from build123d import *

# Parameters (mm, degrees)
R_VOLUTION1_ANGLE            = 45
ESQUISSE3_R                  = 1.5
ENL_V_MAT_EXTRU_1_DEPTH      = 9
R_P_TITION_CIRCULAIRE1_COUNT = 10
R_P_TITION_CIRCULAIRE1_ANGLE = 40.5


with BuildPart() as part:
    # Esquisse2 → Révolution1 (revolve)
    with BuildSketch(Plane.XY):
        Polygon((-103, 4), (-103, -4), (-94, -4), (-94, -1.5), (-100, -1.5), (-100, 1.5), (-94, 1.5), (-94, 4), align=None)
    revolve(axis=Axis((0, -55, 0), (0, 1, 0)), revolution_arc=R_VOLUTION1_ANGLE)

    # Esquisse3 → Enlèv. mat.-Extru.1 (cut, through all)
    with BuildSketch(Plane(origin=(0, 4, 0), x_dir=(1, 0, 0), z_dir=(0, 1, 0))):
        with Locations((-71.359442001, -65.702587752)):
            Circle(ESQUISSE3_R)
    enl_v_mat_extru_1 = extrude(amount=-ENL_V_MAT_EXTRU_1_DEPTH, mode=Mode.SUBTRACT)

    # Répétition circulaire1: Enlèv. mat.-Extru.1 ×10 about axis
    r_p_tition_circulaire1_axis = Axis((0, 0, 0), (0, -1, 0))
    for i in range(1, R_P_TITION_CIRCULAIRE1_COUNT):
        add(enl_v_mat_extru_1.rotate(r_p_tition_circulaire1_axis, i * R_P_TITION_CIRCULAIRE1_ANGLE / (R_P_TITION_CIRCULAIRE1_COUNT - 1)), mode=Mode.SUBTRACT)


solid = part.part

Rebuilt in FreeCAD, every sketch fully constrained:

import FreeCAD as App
import Part
import Sketcher

V = App.Vector
Q = App.Units.Quantity

doc = App.newDocument("Part")
body = doc.addObject("PartDesign::Body", "Body")

# Sketch on XY plane
sketch1 = doc.addObject("Sketcher::SketchObject", "Sketch")
body.addObject(sketch1)
sketch1.AttachmentSupport = (doc.XY_Plane, [""])
sketch1.MapMode = "FlatFace"
sketch1.addGeometry([
    Part.LineSegment(V(-103, 4, 0), V(-103, -4, 0)),  # 0
    Part.LineSegment(V(-103, -4, 0), V(-94, -4, 0)),  # 1
    Part.LineSegment(V(-94, -4, 0), V(-94, -1.5, 0)),  # 2
    Part.LineSegment(V(-94, -1.5, 0), V(-100, -1.5, 0)),  # 3
    Part.LineSegment(V(-100, -1.5, 0), V(-100, 1.5, 0)),  # 4
    Part.LineSegment(V(-100, 1.5, 0), V(-94, 1.5, 0)),  # 5
    Part.LineSegment(V(-94, 1.5, 0), V(-94, 4, 0)),  # 6
    Part.LineSegment(V(-94, 4, 0), V(-103, 4, 0)),  # 7
], False)
sketch1.addConstraint([
    Sketcher.Constraint("Coincident", 0, 2, 1, 1),
    Sketcher.Constraint("Coincident", 1, 2, 2, 1),
    Sketcher.Constraint("Coincident", 2, 2, 3, 1),
    Sketcher.Constraint("Coincident", 3, 2, 4, 1),
    Sketcher.Constraint("Coincident", 4, 2, 5, 1),
    Sketcher.Constraint("Coincident", 5, 2, 6, 1),
    Sketcher.Constraint("Coincident", 6, 2, 7, 1),
    Sketcher.Constraint("Coincident", 7, 2, 0, 1),
    Sketcher.Constraint("Vertical", 0),
    Sketcher.Constraint("Horizontal", 1),
    Sketcher.Constraint("Vertical", 2),
    Sketcher.Constraint("Horizontal", 3),
    Sketcher.Constraint("Vertical", 4),
    Sketcher.Constraint("Horizontal", 5),
    Sketcher.Constraint("Vertical", 6),
    Sketcher.Constraint("Horizontal", 7),
    Sketcher.Constraint("Symmetric", 2, 2, 5, 2, -1),
    Sketcher.Constraint("Equal", 2, 6),
    Sketcher.Constraint("DistanceX", 1, 1, 1, 2, Q("9 mm")),
    Sketcher.Constraint("DistanceX", 3, 2, 3, 1, Q("6 mm")),
    Sketcher.Constraint("DistanceY", 0, 2, 0, 1, Q("8 mm")),
    Sketcher.Constraint("DistanceY", 4, 1, 4, 2, Q("3 mm")),
    Sketcher.Constraint("DistanceX", 0, 2, -1, 1, Q("103 mm")),
])
revolution = doc.addObject("PartDesign::Revolution", "Revolution")
body.addObject(revolution)
revolution.Profile = sketch1
revolution.ReferenceAxis = (sketch1, ["V_Axis"])
revolution.Angle = 45

# Sketch on XZ plane
sketch2 = doc.addObject("Sketcher::SketchObject", "Sketch001")
body.addObject(sketch2)
sketch2.AttachmentSupport = (doc.XZ_Plane, [""])
sketch2.MapMode = "FlatFace"
sketch2.AttachmentOffset = App.Placement(V(0, 0, -4), App.Rotation())
sketch2.addGeometry(Part.Circle(V(-71.4, 65.7, 0), V(0, 0, 1), 1.5), False)
sketch2.addConstraint([
    Sketcher.Constraint("Diameter", 0, Q("3 mm")),
    Sketcher.Constraint("DistanceX", 0, 3, -1, 1, Q("71.359442 mm")),
    Sketcher.Constraint("DistanceY", -1, 1, 0, 3, Q("65.702588 mm")),
])
pocket1 = doc.addObject("PartDesign::Pocket", "Pocket")
body.addObject(pocket1)
pocket1.Profile = sketch2
pocket1.Type = "ThroughAll"
pocket1.Reversed = True
doc.recompute()

polarpattern = doc.addObject("PartDesign::PolarPattern", "PolarPattern")
body.addObject(polarpattern)
polarpattern.Originals = [pocket1]
polarpattern.Axis = (doc.Y_Axis, [""])
polarpattern.Angle = 40.5
polarpattern.Occurrences = 10
polarpattern.Reversed = True
body.Tip = polarpattern

doc.recompute()
